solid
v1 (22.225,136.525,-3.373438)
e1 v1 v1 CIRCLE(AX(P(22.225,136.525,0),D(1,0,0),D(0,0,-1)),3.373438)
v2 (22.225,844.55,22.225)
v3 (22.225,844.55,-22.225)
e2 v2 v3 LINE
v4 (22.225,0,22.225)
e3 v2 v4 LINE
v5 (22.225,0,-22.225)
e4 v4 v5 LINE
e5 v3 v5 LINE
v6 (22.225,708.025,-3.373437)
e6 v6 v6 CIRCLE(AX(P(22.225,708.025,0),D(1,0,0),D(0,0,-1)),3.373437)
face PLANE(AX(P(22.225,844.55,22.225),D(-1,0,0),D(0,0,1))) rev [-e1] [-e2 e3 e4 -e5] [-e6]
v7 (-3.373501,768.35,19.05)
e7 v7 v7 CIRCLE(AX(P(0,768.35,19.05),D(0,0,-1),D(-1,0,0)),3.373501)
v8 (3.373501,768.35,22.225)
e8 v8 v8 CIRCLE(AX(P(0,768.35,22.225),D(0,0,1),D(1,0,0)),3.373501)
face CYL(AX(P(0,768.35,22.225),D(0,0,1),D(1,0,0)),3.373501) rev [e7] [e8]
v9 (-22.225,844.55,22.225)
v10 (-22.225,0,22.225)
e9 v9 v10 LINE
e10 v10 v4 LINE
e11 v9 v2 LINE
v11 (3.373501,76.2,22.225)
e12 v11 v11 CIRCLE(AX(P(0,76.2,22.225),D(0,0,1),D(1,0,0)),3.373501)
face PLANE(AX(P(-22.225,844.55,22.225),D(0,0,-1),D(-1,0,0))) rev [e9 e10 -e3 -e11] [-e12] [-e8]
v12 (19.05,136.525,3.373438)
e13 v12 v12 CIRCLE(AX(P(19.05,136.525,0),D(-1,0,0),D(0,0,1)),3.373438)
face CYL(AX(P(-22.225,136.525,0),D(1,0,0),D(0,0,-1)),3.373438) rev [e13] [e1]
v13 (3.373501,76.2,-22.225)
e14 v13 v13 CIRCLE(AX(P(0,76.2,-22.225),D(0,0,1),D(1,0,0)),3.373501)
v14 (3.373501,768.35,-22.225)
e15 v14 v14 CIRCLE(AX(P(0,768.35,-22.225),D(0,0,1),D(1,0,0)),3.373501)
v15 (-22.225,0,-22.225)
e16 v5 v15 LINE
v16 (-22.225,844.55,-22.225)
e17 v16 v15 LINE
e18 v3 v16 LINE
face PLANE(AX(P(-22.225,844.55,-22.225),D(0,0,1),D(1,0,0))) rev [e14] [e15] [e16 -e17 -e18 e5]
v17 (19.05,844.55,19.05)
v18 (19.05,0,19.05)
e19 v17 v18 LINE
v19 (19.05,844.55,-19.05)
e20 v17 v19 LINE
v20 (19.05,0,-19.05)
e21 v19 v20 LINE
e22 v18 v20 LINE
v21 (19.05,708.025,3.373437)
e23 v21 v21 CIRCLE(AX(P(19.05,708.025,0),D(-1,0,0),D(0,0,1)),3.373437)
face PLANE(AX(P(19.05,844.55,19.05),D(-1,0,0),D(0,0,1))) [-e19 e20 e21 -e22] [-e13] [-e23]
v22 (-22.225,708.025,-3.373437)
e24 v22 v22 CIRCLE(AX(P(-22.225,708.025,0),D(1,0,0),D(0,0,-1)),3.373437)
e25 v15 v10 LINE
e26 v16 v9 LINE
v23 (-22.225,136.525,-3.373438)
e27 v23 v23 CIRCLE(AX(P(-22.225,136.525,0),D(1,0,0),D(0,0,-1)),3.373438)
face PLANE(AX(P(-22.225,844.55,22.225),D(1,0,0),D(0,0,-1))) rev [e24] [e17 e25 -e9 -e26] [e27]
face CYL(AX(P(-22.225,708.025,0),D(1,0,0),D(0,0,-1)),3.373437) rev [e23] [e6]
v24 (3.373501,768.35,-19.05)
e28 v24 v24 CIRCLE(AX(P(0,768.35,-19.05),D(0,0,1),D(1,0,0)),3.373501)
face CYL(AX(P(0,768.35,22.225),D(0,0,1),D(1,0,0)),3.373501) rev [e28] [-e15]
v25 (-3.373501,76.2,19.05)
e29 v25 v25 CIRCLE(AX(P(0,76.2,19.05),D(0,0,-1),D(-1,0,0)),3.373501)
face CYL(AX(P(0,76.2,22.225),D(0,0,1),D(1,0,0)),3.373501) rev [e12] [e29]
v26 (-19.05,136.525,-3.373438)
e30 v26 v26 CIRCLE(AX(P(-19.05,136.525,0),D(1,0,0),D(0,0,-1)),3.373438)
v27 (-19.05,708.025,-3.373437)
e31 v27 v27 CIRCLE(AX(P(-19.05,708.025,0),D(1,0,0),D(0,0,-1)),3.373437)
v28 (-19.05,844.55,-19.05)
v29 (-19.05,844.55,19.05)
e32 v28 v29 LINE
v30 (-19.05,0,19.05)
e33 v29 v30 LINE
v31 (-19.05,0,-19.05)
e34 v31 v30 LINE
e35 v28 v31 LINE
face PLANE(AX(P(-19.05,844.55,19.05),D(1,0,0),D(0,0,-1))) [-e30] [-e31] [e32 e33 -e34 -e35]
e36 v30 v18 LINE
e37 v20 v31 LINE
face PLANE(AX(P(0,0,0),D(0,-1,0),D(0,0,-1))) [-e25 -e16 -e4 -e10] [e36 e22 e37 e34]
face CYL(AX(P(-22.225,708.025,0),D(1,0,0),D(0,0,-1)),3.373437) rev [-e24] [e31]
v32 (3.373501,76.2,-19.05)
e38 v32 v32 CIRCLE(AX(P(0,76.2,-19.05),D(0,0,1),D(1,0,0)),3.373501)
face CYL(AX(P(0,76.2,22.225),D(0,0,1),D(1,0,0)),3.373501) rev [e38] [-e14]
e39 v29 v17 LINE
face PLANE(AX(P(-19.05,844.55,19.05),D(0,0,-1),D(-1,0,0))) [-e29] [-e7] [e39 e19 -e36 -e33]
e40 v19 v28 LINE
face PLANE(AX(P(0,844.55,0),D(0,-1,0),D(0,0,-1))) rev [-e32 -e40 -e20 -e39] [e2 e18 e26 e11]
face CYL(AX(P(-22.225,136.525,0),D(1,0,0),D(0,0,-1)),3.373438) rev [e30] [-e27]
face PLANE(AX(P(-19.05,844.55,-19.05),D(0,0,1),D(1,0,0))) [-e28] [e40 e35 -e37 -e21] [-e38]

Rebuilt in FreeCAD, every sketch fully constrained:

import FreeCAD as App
import Part
import Sketcher
Q = App.Units.Quantity

doc = App.newDocument("Part")
params = doc.addObject("Spreadsheet::Sheet", "Params")
for row, (alias, value) in enumerate([
    ("sketch1_width", "1.5 in"),
    ("sketch1_width2", "1.75 in"),
    ("pad1_length", "33.25 in"),
    ("hole_diameter", "6.747002 mm"),
    ("sketch3_diameter", "0.265625 in"),
], start=1):
    params.set(f"A{row}", alias)
    params.set(f"B{row}", "=" + value)
    params.setAlias(f"B{row}", alias)

body = doc.addObject("PartDesign::Body", "Body")

# Sketch on XZ plane
sketch1 = body.newObject("Sketcher::SketchObject", "Sketch")
sketch1.AttachmentSupport = (doc.getObject("XZ_Plane"), [""])
sketch1.MapMode = "FlatFace"
sketch1.addGeometry(Part.LineSegment(App.Vector(-22, -22, 0), App.Vector(-22, 22, 0)), False)
sketch1.addGeometry(Part.LineSegment(App.Vector(-22, 22, 0), App.Vector(22, 22, 0)), False)
sketch1.addGeometry(Part.LineSegment(App.Vector(22, 22, 0), App.Vector(22, -22, 0)), False)
sketch1.addGeometry(Part.LineSegment(App.Vector(22, -22, 0), App.Vector(-22, -22, 0)), False)
sketch1.addGeometry(Part.LineSegment(App.Vector(19, 19, 0), App.Vector(-19, 19, 0)), False)
sketch1.addGeometry(Part.LineSegment(App.Vector(-19, 19, 0), App.Vector(-19, -19, 0)), False)
sketch1.addGeometry(Part.LineSegment(App.Vector(-19, -19, 0), App.Vector(19, -19, 0)), False)
sketch1.addGeometry(Part.LineSegment(App.Vector(19, -19, 0), App.Vector(19, 19, 0)), False)
sketch1.addConstraint(Sketcher.Constraint("Coincident", 0, 2, 1, 1))
sketch1.addConstraint(Sketcher.Constraint("Coincident", 1, 2, 2, 1))
sketch1.addConstraint(Sketcher.Constraint("Coincident", 2, 2, 3, 1))
sketch1.addConstraint(Sketcher.Constraint("Coincident", 3, 2, 0, 1))
sketch1.addConstraint(Sketcher.Constraint("Coincident", 4, 2, 5, 1))
sketch1.addConstraint(Sketcher.Constraint("Coincident", 5, 2, 6, 1))
sketch1.addConstraint(Sketcher.Constraint("Coincident", 6, 2, 7, 1))
sketch1.addConstraint(Sketcher.Constraint("Coincident", 7, 2, 4, 1))
sketch1.addConstraint(Sketcher.Constraint("Vertical", 0))
sketch1.addConstraint(Sketcher.Constraint("Horizontal", 1))
sketch1.addConstraint(Sketcher.Constraint("Vertical", 2))
sketch1.addConstraint(Sketcher.Constraint("Horizontal", 3))
sketch1.addConstraint(Sketcher.Constraint("Horizontal", 4))
sketch1.addConstraint(Sketcher.Constraint("Vertical", 5))
sketch1.addConstraint(Sketcher.Constraint("Horizontal", 6))
sketch1.addConstraint(Sketcher.Constraint("Vertical", 7))
sketch1.addConstraint(Sketcher.Constraint("Symmetric", 0, 2, 2, 2, -1, 1))
sketch1.addConstraint(Sketcher.Constraint("Symmetric", 4, 2, 6, 2, -1, 1))
sketch1.addConstraint(Sketcher.Constraint("Equal", 3, 0))
sketch1.addConstraint(Sketcher.Constraint("Equal", 6, 5))
sketch1.addConstraint(Sketcher.Constraint("DistanceX", 4, 2, 4, 1, Q("1.5 in")))
sketch1.addConstraint(Sketcher.Constraint("DistanceX", 1, 1, 1, 2, Q("1.75 in")))
sketch1.setExpression("Constraints[20]", "Params.sketch1_width")
sketch1.setExpression("Constraints[21]", "Params.sketch1_width2")
pad1 = body.newObject("PartDesign::Pad", "Pad")
pad1.Profile = sketch1
pad1.setExpression("Length", "Params.pad1_length")
pad1.Reversed = True

# Sketch on XY plane
sketch2 = body.newObject("Sketcher::SketchObject", "Sketch001")
sketch2.AttachmentSupport = (doc.getObject("XY_Plane"), [""])
sketch2.MapMode = "FlatFace"
sketch2.AttachmentOffset = App.Placement(App.Vector(0, 0, 0.875 * 25.4), App.Rotation())
sketch2.addGeometry(Part.Circle(App.Vector(0, 768.4, 0), App.Vector(0, 0, 1), 3.4), False)
sketch2.addGeometry(Part.Circle(App.Vector(0, 76.2, 0), App.Vector(0, 0, 1), 3.4), False)
sketch2.addConstraint(Sketcher.Constraint("Equal", 0, 1))
sketch2.addConstraint(Sketcher.Constraint("PointOnObject", 0, 3, -2))
sketch2.addConstraint(Sketcher.Constraint("PointOnObject", 1, 3, -2))
sketch2.addConstraint(Sketcher.Constraint("DistanceY", -1, 1, 1, 3, Q("3 in")))
sketch2.addConstraint(Sketcher.Constraint("DistanceY", -1, 1, 0, 3, Q("30.25 in")))
sketch2.addConstraint(Sketcher.Constraint("Diameter", 0, Q("6.747002 mm")))
doc.recompute()
hole = body.newObject("PartDesign::Hole", "Hole")
hole.Profile = sketch2
hole.ThreadType = "None"
hole.setExpression("Diameter", "Params.hole_diameter")
hole.DepthType = "ThroughAll"

# Sketch on YZ plane
sketch3 = body.newObject("Sketcher::SketchObject", "Sketch002")
sketch3.AttachmentSupport = (doc.getObject("YZ_Plane"), [""])
sketch3.MapMode = "FlatFace"
sketch3.AttachmentOffset = App.Placement(App.Vector(0, 0, 0.875 * 25.4), App.Rotation())
sketch3.addGeometry(Part.Circle(App.Vector(136.5, 0, 0), App.Vector(0, 0, 1), 3.4), False)
sketch3.addGeometry(Part.Circle(App.Vector(708, 0, 0), App.Vector(0, 0, 1), 3.4), False)
sketch3.addConstraint(Sketcher.Constraint("Equal", 0, 1))
sketch3.addConstraint(Sketcher.Constraint("PointOnObject", 0, 3, -1))
sketch3.addConstraint(Sketcher.Constraint("PointOnObject", 1, 3, -1))
sketch3.addConstraint(Sketcher.Constraint("Diameter", 0, Q("0.265625 in")))
sketch3.addConstraint(Sketcher.Constraint("DistanceX", 0, 3, 1, 3, Q("22.5 in")))
sketch3.addConstraint(Sketcher.Constraint("DistanceX", -1, 1, 0, 3, Q("5.375 in")))
sketch3.setExpression("Constraints[3]", "Params.sketch3_diameter")
pocket1 = body.newObject("PartDesign::Pocket", "Pocket")
pocket1.Profile = sketch3
pocket1.Type = "ThroughAll"

doc.recompute()
